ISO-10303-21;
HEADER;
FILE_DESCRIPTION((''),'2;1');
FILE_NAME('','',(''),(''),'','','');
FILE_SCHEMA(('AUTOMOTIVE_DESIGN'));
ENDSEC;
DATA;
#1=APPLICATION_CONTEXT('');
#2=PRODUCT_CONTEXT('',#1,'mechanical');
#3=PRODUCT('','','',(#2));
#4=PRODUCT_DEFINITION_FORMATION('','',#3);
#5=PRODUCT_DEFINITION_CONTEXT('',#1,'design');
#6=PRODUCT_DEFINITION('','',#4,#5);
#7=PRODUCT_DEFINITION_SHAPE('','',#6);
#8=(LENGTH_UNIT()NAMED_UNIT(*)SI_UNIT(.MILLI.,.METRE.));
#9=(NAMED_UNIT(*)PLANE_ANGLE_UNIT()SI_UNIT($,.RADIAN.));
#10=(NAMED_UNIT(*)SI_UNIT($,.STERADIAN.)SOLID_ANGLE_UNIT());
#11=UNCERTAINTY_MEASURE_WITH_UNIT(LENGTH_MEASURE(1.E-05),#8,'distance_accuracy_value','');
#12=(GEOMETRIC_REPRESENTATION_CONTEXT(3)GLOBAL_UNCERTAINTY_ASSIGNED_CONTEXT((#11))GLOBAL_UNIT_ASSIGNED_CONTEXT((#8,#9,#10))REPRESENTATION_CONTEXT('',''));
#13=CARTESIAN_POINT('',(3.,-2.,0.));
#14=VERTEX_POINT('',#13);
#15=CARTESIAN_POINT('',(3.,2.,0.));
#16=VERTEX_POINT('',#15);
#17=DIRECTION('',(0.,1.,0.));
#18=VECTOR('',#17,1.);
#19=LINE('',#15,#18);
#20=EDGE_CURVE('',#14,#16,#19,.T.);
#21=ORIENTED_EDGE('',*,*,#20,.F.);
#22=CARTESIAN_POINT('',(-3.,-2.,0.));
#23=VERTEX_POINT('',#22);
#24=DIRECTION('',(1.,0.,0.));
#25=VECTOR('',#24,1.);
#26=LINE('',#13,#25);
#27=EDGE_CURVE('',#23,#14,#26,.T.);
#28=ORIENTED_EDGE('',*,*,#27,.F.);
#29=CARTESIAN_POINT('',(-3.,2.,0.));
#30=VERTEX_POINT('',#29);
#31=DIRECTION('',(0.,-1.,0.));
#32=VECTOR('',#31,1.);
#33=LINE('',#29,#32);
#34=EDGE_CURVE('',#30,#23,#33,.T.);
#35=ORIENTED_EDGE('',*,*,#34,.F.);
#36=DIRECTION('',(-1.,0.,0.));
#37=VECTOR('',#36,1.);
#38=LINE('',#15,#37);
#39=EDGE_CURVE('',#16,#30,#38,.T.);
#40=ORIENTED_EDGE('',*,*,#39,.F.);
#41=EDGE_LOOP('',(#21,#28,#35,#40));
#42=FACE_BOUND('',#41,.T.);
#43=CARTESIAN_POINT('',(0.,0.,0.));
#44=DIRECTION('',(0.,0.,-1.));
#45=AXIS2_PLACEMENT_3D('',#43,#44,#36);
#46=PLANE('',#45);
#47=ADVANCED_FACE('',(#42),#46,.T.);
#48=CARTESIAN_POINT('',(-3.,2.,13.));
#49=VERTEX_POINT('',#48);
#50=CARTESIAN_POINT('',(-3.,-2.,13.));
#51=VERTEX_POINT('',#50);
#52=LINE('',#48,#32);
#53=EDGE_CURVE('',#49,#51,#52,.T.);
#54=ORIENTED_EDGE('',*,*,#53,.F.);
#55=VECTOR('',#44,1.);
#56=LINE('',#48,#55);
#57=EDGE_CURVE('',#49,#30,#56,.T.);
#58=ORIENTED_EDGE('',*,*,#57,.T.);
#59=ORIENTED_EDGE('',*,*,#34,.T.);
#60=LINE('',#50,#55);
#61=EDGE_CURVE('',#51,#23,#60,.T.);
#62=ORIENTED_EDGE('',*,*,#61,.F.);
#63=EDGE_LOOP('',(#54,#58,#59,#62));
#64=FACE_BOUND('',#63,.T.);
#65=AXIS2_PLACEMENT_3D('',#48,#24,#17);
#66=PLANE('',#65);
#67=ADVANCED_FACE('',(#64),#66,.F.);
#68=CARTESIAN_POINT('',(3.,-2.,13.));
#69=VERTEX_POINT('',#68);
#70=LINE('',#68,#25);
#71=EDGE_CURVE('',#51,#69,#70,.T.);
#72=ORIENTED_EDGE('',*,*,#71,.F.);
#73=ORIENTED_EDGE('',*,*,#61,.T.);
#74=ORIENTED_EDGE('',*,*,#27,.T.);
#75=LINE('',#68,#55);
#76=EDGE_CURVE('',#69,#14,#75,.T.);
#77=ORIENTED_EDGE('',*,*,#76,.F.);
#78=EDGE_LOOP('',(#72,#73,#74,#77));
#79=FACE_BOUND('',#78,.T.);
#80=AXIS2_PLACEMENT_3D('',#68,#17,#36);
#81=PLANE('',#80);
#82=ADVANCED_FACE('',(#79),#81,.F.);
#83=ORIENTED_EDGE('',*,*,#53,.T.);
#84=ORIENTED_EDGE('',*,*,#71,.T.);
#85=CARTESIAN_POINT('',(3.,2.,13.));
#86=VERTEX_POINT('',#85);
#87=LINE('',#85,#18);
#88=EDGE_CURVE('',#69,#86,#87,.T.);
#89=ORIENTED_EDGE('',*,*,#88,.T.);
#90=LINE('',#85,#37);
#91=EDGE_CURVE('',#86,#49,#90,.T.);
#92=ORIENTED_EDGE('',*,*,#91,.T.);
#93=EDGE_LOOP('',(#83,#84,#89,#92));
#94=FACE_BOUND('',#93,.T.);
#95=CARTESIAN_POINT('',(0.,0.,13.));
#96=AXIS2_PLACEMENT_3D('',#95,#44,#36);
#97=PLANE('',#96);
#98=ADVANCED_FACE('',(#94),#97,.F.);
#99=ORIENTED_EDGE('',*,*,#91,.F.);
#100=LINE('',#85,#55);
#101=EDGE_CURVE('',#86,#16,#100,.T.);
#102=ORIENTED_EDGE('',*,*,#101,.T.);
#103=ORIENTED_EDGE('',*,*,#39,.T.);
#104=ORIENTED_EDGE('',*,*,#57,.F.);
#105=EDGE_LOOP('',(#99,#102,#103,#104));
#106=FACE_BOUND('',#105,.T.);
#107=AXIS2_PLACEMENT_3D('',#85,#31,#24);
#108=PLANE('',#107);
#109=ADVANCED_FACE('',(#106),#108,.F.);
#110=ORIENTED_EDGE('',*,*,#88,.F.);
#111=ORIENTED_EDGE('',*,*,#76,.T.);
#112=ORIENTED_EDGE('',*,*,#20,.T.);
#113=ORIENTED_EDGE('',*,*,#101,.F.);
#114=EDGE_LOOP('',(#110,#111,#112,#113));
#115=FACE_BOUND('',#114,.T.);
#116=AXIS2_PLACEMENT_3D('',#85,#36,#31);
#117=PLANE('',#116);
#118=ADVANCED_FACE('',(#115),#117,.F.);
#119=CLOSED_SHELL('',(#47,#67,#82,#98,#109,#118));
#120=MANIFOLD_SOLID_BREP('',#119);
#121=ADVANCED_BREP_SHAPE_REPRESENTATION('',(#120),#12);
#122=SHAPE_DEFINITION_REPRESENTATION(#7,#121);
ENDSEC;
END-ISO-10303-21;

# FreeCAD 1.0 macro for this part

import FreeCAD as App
import Part
import Sketcher

V = App.Vector
Q = App.Units.Quantity

doc = App.newDocument("Part")
params = doc.addObject("Spreadsheet::Sheet", "Params")
for row, (alias, value) in enumerate([
    ("sketch1_width", "6 mm"),
    ("sketch1_height", "4 mm"),
    ("pad1_length", "13 mm"),
], start=1):
    params.set(f"A{row}", alias)
    params.set(f"B{row}", "=" + value)
    params.setAlias(f"B{row}", alias)

body = doc.addObject("PartDesign::Body", "Body")

sketch1 = body.newObject("Sketcher::SketchObject", "Sketch")
sketch1.AttachmentSupport = (doc.getObject("XY_Plane"), [""])
sketch1.MapMode = "FlatFace"
sketch1.addGeometry([
    Part.LineSegment(V(-3, 2, 0), V(-3, -2, 0)),
    Part.LineSegment(V(-3, -2, 0), V(3, -2, 0)),
    Part.LineSegment(V(3, -2, 0), V(3, 2, 0)),
    Part.LineSegment(V(3, 2, 0), V(-3, 2, 0)),
], False)
sketch1.addConstraint([
    Sketcher.Constraint("Coincident", 0, 2, 1, 1),
    Sketcher.Constraint("Coincident", 1, 2, 2, 1),
    Sketcher.Constraint("Coincident", 2, 2, 3, 1),
    Sketcher.Constraint("Coincident", 3, 2, 0, 1),
    Sketcher.Constraint("Vertical", 0),
    Sketcher.Constraint("Horizontal", 1),
    Sketcher.Constraint("Vertical", 2),
    Sketcher.Constraint("Horizontal", 3),
    Sketcher.Constraint("Symmetric", 0, 2, 2, 2, -1, 1),
    Sketcher.Constraint("DistanceX", 1, 1, 1, 2, Q("6 mm")),
    Sketcher.Constraint("DistanceY", 0, 2, 0, 1, Q("4 mm")),
])
sketch1.setExpression("Constraints[9]", "Params.sketch1_width")
sketch1.setExpression("Constraints[10]", "Params.sketch1_height")
pad1 = body.newObject("PartDesign::Pad", "Pad")
pad1.Profile = sketch1
pad1.setExpression("Length", "Params.pad1_length")

doc.recompute()
